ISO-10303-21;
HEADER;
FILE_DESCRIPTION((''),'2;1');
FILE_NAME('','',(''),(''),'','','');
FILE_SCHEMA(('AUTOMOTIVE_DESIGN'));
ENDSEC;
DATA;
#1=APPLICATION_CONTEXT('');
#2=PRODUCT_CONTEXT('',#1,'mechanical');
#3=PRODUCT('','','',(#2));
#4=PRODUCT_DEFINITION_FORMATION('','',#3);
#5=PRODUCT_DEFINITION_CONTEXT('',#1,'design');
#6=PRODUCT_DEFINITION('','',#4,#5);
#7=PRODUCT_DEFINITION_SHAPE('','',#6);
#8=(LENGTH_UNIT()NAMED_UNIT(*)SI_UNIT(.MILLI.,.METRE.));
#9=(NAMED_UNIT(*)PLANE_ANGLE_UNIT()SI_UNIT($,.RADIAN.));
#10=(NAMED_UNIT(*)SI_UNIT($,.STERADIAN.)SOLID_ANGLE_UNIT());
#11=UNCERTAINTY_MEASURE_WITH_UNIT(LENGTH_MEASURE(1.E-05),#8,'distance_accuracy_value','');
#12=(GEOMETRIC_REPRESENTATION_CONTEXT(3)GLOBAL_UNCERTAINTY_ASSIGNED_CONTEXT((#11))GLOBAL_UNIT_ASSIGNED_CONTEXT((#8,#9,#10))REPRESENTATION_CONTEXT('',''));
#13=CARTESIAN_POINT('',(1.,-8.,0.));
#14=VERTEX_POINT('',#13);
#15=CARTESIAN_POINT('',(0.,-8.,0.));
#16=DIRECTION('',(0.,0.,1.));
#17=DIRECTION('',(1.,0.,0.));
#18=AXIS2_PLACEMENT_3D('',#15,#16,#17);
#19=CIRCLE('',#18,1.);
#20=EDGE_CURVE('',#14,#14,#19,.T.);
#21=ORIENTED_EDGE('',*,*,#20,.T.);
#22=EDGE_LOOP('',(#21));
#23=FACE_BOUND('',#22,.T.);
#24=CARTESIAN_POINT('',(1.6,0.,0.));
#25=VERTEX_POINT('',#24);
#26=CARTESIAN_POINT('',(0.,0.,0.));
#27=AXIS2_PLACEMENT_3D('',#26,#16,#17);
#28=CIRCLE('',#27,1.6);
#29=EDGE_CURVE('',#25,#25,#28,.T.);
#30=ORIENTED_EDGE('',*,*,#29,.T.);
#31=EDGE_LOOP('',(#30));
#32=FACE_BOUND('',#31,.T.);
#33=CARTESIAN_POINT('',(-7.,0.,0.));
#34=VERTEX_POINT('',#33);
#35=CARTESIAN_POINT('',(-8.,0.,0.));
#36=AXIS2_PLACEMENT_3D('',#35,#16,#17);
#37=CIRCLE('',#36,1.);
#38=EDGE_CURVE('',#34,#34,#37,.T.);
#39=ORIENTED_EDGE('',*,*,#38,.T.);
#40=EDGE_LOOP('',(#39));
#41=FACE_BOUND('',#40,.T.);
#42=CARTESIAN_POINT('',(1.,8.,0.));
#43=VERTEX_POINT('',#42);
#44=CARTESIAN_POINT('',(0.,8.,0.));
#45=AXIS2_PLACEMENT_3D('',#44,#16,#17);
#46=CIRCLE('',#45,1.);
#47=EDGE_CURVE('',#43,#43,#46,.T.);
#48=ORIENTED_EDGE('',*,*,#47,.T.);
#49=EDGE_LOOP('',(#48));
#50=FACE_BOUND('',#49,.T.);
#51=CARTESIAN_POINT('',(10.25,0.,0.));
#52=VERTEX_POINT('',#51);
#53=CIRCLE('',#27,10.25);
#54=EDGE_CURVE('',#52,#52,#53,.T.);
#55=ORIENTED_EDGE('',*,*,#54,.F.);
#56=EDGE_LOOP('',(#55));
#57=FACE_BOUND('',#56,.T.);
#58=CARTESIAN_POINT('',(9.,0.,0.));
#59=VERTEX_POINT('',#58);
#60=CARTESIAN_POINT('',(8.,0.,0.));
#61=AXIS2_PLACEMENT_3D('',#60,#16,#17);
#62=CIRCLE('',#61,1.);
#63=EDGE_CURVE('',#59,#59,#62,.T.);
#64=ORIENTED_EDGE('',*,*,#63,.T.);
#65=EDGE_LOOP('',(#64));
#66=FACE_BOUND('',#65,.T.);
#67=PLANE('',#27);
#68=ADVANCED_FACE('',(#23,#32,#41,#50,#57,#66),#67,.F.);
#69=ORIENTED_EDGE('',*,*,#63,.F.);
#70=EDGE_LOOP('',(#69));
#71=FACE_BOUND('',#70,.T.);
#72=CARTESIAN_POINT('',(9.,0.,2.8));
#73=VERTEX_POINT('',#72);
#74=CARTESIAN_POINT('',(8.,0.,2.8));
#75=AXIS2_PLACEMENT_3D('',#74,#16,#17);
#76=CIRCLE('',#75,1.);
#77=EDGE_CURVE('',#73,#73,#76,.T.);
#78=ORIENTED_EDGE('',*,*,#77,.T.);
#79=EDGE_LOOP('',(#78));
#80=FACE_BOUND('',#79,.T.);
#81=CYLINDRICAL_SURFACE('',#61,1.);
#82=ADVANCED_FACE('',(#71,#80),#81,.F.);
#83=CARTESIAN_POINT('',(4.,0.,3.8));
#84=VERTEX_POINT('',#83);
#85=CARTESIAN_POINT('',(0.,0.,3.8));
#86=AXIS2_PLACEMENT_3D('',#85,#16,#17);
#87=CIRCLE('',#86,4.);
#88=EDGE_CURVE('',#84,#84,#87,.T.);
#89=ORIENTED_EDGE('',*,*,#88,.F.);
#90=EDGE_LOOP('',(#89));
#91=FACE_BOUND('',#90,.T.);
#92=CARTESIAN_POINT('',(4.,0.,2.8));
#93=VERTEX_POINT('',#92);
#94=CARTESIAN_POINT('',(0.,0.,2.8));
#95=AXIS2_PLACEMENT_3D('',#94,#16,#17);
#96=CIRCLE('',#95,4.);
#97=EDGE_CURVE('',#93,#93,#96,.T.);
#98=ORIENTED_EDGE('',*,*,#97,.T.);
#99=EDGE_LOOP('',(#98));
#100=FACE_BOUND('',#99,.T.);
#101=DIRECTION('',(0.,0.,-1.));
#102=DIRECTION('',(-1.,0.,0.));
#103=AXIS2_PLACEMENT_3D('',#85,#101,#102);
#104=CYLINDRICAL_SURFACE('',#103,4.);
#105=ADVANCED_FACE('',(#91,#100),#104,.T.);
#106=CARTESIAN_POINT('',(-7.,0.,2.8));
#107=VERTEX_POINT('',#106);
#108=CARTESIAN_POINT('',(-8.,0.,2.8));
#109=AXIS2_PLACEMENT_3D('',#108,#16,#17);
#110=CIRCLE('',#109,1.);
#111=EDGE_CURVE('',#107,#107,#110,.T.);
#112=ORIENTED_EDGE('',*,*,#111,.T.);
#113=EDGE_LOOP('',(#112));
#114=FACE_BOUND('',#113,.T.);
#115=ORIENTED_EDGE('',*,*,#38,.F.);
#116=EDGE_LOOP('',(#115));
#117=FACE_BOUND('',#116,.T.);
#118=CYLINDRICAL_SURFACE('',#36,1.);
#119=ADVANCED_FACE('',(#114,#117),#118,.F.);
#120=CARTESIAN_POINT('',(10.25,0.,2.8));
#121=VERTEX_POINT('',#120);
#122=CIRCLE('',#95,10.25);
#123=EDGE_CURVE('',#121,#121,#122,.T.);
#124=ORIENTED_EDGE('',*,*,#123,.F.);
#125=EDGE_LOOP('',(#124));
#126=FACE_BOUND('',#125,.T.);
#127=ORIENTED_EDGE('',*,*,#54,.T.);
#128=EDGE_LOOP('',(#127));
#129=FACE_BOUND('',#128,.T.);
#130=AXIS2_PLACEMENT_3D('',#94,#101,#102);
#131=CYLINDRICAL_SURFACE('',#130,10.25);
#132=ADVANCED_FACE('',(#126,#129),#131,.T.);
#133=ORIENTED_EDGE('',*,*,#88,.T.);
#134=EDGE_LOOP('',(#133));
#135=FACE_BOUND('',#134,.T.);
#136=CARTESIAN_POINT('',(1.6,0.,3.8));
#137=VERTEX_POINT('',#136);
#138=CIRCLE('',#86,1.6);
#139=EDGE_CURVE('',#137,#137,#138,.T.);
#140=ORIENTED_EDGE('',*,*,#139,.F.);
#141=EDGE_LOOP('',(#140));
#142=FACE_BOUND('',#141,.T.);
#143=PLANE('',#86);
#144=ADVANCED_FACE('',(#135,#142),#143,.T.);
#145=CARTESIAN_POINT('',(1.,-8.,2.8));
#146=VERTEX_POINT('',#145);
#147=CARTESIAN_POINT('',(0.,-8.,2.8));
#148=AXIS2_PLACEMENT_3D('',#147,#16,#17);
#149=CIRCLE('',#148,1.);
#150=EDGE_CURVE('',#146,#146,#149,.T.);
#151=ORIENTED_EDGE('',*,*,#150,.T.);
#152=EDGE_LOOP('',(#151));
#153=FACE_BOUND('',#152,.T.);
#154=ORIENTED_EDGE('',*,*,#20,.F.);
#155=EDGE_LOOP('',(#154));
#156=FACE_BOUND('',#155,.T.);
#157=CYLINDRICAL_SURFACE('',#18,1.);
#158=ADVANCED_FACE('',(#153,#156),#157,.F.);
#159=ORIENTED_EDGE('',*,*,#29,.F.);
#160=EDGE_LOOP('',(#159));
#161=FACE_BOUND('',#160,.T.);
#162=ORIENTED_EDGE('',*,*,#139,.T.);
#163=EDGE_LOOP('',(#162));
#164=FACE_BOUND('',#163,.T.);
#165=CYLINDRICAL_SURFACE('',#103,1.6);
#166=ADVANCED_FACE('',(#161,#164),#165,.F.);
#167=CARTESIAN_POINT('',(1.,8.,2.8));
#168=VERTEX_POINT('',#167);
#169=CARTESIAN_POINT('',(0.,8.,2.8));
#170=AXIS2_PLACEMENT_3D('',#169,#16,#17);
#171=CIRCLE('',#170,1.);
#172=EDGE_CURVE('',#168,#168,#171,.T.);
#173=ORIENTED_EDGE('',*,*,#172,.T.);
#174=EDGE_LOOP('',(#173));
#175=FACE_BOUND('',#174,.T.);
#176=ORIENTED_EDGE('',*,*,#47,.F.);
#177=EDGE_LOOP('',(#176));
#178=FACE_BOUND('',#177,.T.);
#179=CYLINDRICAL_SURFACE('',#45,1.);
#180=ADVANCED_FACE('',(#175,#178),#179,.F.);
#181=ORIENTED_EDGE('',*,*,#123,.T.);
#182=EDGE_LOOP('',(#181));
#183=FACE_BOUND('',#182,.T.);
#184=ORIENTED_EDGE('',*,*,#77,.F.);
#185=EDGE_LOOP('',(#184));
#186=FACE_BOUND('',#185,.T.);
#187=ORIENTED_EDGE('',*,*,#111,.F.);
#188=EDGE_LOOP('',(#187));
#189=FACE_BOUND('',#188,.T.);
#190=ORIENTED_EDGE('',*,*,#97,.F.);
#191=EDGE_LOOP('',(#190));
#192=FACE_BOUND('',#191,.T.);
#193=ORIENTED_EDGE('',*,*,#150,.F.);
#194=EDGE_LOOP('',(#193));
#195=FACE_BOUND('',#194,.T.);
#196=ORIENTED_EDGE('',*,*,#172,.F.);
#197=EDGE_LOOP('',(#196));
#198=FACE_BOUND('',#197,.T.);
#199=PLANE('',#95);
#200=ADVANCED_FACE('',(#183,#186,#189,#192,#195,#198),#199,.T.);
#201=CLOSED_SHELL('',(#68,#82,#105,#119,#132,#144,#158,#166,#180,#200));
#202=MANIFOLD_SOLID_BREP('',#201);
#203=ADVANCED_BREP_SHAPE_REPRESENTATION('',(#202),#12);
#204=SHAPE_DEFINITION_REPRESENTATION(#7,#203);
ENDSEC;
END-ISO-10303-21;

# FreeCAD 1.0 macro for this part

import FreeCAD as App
import Part
import Sketcher
from FreeCAD import Vector
Q = App.Units.Quantity

doc = App.newDocument("Part")
body = doc.addObject("PartDesign::Body", "Body")

# Sketch on XY plane
sketch1 = body.newObject("Sketcher::SketchObject", "Sketch")
sketch1.AttachmentSupport = (doc.getObject("XY_Plane"), [""])
sketch1.MapMode = "FlatFace"
sketch1.addGeometry(Part.Circle(Vector(0, 0, 0), Vector(0, 0, 1), 10.2), False)
sketch1.addGeometry(Part.Circle(Vector(0, 0, 0), Vector(0, 0, 1), 4), False)
sketch1.addConstraint(Sketcher.Constraint("Coincident", 0, 3, -1, 1))
sketch1.addConstraint(Sketcher.Constraint("Coincident", 1, 3, -1, 1))
sketch1.addConstraint(Sketcher.Constraint("Diameter", 1, Q("8 mm")))
sketch1.addConstraint(Sketcher.Constraint("Diameter", 0, Q("20.5 mm")))
pad1 = body.newObject("PartDesign::Pad", "Pad")
pad1.Profile = sketch1
pad1.Length = 2.8

# Sketch on XY plane
sketch2 = body.newObject("Sketcher::SketchObject", "Sketch001")
sketch2.AttachmentSupport = (doc.getObject("XY_Plane"), [""])
sketch2.MapMode = "FlatFace"
sketch2.addGeometry(Part.Circle(Vector(0, 0, 0), Vector(0, 0, 1), 4), False)
sketch2.addGeometry(Part.Circle(Vector(0, 0, 0), Vector(0, 0, 1), 1.6), False)
sketch2.addConstraint(Sketcher.Constraint("Coincident", 0, 3, -1, 1))
sketch2.addConstraint(Sketcher.Constraint("Coincident", 1, 3, -1, 1))
sketch2.addConstraint(Sketcher.Constraint("Diameter", 0, Q("8 mm")))
sketch2.addConstraint(Sketcher.Constraint("Diameter", 1, Q("3.2 mm")))
pad2 = body.newObject("PartDesign::Pad", "Pad001")
pad2.Profile = sketch2
pad2.Length = 3.8

# Sketch on XY plane
sketch3 = body.newObject("Sketcher::SketchObject", "Sketch002")
sketch3.AttachmentSupport = (doc.getObject("XY_Plane"), [""])
sketch3.MapMode = "FlatFace"
sketch3.AttachmentOffset = App.Placement(Vector(0, 0, 2.8), App.Rotation())
sketch3.addGeometry(Part.Circle(Vector(0, 8, 0), Vector(0, 0, 1), 1), False)
sketch3.addGeometry(Part.Circle(Vector(8, 0, 0), Vector(0, 0, 1), 1), False)
sketch3.addGeometry(Part.Circle(Vector(0, -8, 0), Vector(0, 0, 1), 1), False)
sketch3.addGeometry(Part.Circle(Vector(-8, 0, 0), Vector(0, 0, 1), 1), False)
sketch3.addConstraint(Sketcher.Constraint("Equal", 0, 1))
sketch3.addConstraint(Sketcher.Constraint("Equal", 1, 2))
sketch3.addConstraint(Sketcher.Constraint("Equal", 2, 3))
sketch3.addConstraint(Sketcher.Constraint("Symmetric", 0, 3, 2, 3, -1, 1))
sketch3.addConstraint(Sketcher.Constraint("Symmetric", 1, 3, 3, 3, -1, 1))
sketch3.addConstraint(Sketcher.Constraint("PointOnObject", 0, 3, -2))
sketch3.addConstraint(Sketcher.Constraint("PointOnObject", 1, 3, -1))
sketch3.addConstraint(Sketcher.Constraint("Diameter", 0, Q("2 mm")))
sketch3.addConstraint(Sketcher.Constraint("DistanceY", -1, 1, 0, 3, Q("8 mm")))
sketch3.addConstraint(Sketcher.Constraint("DistanceX", -1, 1, 1, 3, Q("8 mm")))
pocket1 = body.newObject("PartDesign::Pocket", "Pocket")
pocket1.Profile = sketch3
pocket1.Length = 2.8

doc.recompute()
